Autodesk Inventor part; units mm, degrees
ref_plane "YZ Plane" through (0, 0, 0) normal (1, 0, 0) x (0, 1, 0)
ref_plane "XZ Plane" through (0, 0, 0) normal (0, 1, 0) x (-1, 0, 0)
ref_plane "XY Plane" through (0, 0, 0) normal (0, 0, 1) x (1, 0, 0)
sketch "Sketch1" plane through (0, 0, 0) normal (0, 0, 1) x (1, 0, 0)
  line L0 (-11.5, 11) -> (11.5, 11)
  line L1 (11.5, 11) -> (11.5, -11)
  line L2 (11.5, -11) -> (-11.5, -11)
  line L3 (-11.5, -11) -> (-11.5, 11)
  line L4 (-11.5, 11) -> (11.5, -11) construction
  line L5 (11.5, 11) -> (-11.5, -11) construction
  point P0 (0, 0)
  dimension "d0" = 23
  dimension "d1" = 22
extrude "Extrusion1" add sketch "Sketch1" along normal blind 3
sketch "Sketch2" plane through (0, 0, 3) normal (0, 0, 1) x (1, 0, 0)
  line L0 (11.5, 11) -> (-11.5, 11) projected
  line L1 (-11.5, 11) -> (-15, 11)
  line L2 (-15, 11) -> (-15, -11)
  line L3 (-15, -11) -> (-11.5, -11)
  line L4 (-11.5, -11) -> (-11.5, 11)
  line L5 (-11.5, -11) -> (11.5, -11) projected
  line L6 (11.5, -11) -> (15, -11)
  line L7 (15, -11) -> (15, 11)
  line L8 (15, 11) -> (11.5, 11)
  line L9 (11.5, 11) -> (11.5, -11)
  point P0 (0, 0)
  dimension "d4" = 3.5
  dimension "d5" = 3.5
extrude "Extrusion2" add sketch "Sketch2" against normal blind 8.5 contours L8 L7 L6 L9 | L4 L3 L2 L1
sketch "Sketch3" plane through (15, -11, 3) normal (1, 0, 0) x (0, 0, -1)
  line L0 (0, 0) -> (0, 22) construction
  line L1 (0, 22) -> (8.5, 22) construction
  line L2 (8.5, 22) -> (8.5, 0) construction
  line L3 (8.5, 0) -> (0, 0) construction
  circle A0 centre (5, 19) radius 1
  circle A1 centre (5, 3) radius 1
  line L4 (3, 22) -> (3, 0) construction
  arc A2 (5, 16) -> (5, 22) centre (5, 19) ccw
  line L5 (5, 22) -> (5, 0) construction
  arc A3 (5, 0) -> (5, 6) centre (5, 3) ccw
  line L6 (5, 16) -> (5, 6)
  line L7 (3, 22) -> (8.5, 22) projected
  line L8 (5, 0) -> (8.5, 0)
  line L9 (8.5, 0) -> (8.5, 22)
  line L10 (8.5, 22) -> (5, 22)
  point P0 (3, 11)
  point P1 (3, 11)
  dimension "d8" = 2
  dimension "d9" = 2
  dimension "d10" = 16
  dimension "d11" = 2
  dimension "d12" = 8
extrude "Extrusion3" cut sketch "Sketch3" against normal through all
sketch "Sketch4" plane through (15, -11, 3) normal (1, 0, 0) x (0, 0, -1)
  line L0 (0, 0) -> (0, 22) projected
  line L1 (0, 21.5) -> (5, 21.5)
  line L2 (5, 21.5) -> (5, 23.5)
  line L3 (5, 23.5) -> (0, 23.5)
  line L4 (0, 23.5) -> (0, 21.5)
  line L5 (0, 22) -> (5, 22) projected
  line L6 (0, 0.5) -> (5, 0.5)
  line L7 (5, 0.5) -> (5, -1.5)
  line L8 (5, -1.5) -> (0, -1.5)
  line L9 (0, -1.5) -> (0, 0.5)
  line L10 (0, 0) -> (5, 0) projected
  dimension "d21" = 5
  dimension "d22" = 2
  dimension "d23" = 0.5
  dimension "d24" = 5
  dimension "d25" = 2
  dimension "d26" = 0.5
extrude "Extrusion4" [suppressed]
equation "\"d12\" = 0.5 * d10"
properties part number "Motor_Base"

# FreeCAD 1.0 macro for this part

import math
import FreeCAD as App
import Part
import Sketcher
from FreeCAD import Vector


def add_polygon(sketch, points):
    """Adds a closed chain of lines whose ends are joined by coincident constraints."""
    first, n = sketch.GeometryCount, len(points)
    for a, b in zip(points, points[1:] + points[:1]):
        sketch.addGeometry(Part.LineSegment(App.Vector(*a, 0), App.Vector(*b, 0)), False)
    for i in range(n):
        sketch.addConstraint(Sketcher.Constraint("Coincident", first + i, 2, first + (i + 1) % n, 1))

doc = App.newDocument("Part")
body = doc.addObject("PartDesign::Body", "Body")

sketch1 = body.newObject("Sketcher::SketchObject", "Sketch")
sketch1.AttachmentSupport = (doc.getObject("XY_Plane"), [""])
sketch1.MapMode = "FlatFace"
add_polygon(sketch1, [(12, 11), (-12, 11), (-12, -11), (12, -11)])
sketch1.addConstraint(Sketcher.Constraint("Horizontal", 0))
sketch1.addConstraint(Sketcher.Constraint("Vertical", 1))
sketch1.addConstraint(Sketcher.Constraint("Horizontal", 2))
sketch1.addConstraint(Sketcher.Constraint("Vertical", 3))
sketch1.addConstraint(Sketcher.Constraint("Symmetric", 0, 2, 2, 2, -1, 1))
sketch1.addConstraint(Sketcher.Constraint("DistanceX", 0, 2, 0, 1, 23.0))
sketch1.addConstraint(Sketcher.Constraint("DistanceY", 1, 2, 1, 1, 22.0))
pad1 = body.newObject("PartDesign::Pad", "Pad")
pad1.Profile = sketch1
pad1.Length = 3

sketch2 = body.newObject("Sketcher::SketchObject", "Sketch001")
sketch2.AttachmentSupport = (doc.getObject("XY_Plane"), [""])
sketch2.MapMode = "FlatFace"
sketch2.AttachmentOffset = App.Placement(Vector(0, 0, 3), App.Rotation())
add_polygon(sketch2, [(15, 11), (11.5, 11), (11.5, -11), (15, -11)])
add_polygon(sketch2, [(-11.5, -11), (-11.5, 11), (-15, 11), (-15, -11)])
sketch2.addConstraint(Sketcher.Constraint("Horizontal", 0))
sketch2.addConstraint(Sketcher.Constraint("Vertical", 1))
sketch2.addConstraint(Sketcher.Constraint("Horizontal", 2))
sketch2.addConstraint(Sketcher.Constraint("Vertical", 3))
sketch2.addConstraint(Sketcher.Constraint("Vertical", 4))
sketch2.addConstraint(Sketcher.Constraint("Horizontal", 5))
sketch2.addConstraint(Sketcher.Constraint("Vertical", 6))
sketch2.addConstraint(Sketcher.Constraint("Horizontal", 7))
sketch2.addConstraint(Sketcher.Constraint("Symmetric", 1, 2, 4, 2, -1, 1))
sketch2.addConstraint(Sketcher.Constraint("Symmetric", 3, 2, 6, 2, -1, 1))
sketch2.addConstraint(Sketcher.Constraint("Horizontal", 3, 2, 4, 2))
sketch2.addConstraint(Sketcher.Constraint("DistanceX", 0, 2, 0, 1, 3.5))
sketch2.addConstraint(Sketcher.Constraint("DistanceY", 1, 2, 1, 1, 22.0))
sketch2.addConstraint(Sketcher.Constraint("DistanceX", -1, 1, 2, 2, 15.0))
pad2 = body.newObject("PartDesign::Pad", "Pad001")
pad2.Profile = sketch2
pad2.Length = 8.5
pad2.Reversed = True

sketch3 = body.newObject("Sketcher::SketchObject", "Sketch002")
sketch3.AttachmentSupport = (doc.getObject("YZ_Plane"), [""])
sketch3.MapMode = "FlatFace"
sketch3.AttachmentOffset = App.Placement(Vector(0, 0, 15), App.Rotation())
sketch3.addGeometry(Part.Circle(Vector(8, -2, 0), Vector(0, 0, 1), 1), False)
sketch3.addGeometry(Part.Circle(Vector(-8, -2, 0), Vector(0, 0, 1), 1), False)
sketch3.addGeometry(Part.ArcOfCircle(Part.Circle(Vector(8, -2, 0), Vector(0, 0, 1), 3), math.radians(180), math.radians(360)), False)
sketch3.addGeometry(Part.LineSegment(Vector(5, -2, 0), Vector(-5, -2, 0)), False)
sketch3.addGeometry(Part.ArcOfCircle(Part.Circle(Vector(-8, -2, 0), Vector(0, 0, 1), 3), math.radians(180), math.radians(360)), False)
sketch3.addGeometry(Part.LineSegment(Vector(-11, -2, 0), Vector(-11, -5.5, 0)), False)
sketch3.addGeometry(Part.LineSegment(Vector(-11, -5.5, 0), Vector(11, -5.5, 0)), False)
sketch3.addGeometry(Part.LineSegment(Vector(11, -5.5, 0), Vector(11, -2, 0)), False)
sketch3.addConstraint(Sketcher.Constraint("Coincident", 2, 1, 3, 1))
sketch3.addConstraint(Sketcher.Constraint("Coincident", 3, 2, 4, 2))
sketch3.addConstraint(Sketcher.Constraint("Tangent", 4, 1, 5, 1))
sketch3.addConstraint(Sketcher.Constraint("Coincident", 5, 2, 6, 1))
sketch3.addConstraint(Sketcher.Constraint("Coincident", 6, 2, 7, 1))
sketch3.addConstraint(Sketcher.Constraint("Tangent", 7, 2, 2, 2))
sketch3.addConstraint(Sketcher.Constraint("Horizontal", 3))
sketch3.addConstraint(Sketcher.Constraint("Vertical", 5))
sketch3.addConstraint(Sketcher.Constraint("Horizontal", 6))
sketch3.addConstraint(Sketcher.Constraint("Vertical", 7))
sketch3.addConstraint(Sketcher.Constraint("Coincident", 2, 3, 0, 3))
sketch3.addConstraint(Sketcher.Constraint("Coincident", 4, 3, 1, 3))
sketch3.addConstraint(Sketcher.Constraint("Equal", 0, 1))
sketch3.addConstraint(Sketcher.Constraint("Equal", 2, 4))
sketch3.addConstraint(Sketcher.Constraint("Symmetric", 0, 3, 1, 3, -2))
sketch3.addConstraint(Sketcher.Constraint("Horizontal", 4, 3, 2, 1))
sketch3.addConstraint(Sketcher.Constraint("Diameter", 0, 2.0))
sketch3.addConstraint(Sketcher.Constraint("DistanceX", -1, 1, 0, 3, 8.0))
sketch3.addConstraint(Sketcher.Constraint("DistanceY", 0, 3, -1, 1, 2.0))
sketch3.addConstraint(Sketcher.Constraint("Radius", 2, 3.0))
sketch3.addConstraint(Sketcher.Constraint("DistanceY", 5, 2, 5, 1, 3.5))
pocket1 = body.newObject("PartDesign::Pocket", "Pocket")
pocket1.Profile = sketch3
pocket1.Type = "ThroughAll"

doc.recompute()
